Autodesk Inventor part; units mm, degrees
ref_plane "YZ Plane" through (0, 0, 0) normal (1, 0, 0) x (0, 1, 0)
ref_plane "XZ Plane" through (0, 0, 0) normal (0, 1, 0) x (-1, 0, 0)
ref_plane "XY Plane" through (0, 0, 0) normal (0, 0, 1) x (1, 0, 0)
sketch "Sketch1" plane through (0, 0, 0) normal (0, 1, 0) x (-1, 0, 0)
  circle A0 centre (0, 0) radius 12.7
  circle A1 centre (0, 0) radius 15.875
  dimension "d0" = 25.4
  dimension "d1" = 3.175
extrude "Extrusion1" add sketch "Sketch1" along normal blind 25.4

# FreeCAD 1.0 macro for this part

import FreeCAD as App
import Part
import Sketcher

V = App.Vector
Q = App.Units.Quantity

doc = App.newDocument("Part")
body = doc.addObject("PartDesign::Body", "Body")

# Sketch on XZ plane
sketch1 = body.newObject("Sketcher::SketchObject", "Sketch")
sketch1.AttachmentSupport = (doc.getObject("XZ_Plane"), [""])
sketch1.MapMode = "FlatFace"
sketch1.addGeometry(Part.Circle(V(0, 0, 0), V(0, 0, 1), 16), False)
sketch1.addGeometry(Part.Circle(V(0, 0, 0), V(0, 0, 1), 13), False)
sketch1.addConstraint(Sketcher.Constraint("Coincident", 0, 3, -1, 1))
sketch1.addConstraint(Sketcher.Constraint("Coincident", 1, 3, -1, 1))
sketch1.addConstraint(Sketcher.Constraint("Diameter", 1, Q("1 in")))
sketch1.addConstraint(Sketcher.Constraint("Diameter", 0, Q("1.25 in")))
pad1 = body.newObject("PartDesign::Pad", "Pad")
pad1.Profile = sketch1
pad1.Length = Q("1 in")
pad1.Reversed = True

doc.recompute()
